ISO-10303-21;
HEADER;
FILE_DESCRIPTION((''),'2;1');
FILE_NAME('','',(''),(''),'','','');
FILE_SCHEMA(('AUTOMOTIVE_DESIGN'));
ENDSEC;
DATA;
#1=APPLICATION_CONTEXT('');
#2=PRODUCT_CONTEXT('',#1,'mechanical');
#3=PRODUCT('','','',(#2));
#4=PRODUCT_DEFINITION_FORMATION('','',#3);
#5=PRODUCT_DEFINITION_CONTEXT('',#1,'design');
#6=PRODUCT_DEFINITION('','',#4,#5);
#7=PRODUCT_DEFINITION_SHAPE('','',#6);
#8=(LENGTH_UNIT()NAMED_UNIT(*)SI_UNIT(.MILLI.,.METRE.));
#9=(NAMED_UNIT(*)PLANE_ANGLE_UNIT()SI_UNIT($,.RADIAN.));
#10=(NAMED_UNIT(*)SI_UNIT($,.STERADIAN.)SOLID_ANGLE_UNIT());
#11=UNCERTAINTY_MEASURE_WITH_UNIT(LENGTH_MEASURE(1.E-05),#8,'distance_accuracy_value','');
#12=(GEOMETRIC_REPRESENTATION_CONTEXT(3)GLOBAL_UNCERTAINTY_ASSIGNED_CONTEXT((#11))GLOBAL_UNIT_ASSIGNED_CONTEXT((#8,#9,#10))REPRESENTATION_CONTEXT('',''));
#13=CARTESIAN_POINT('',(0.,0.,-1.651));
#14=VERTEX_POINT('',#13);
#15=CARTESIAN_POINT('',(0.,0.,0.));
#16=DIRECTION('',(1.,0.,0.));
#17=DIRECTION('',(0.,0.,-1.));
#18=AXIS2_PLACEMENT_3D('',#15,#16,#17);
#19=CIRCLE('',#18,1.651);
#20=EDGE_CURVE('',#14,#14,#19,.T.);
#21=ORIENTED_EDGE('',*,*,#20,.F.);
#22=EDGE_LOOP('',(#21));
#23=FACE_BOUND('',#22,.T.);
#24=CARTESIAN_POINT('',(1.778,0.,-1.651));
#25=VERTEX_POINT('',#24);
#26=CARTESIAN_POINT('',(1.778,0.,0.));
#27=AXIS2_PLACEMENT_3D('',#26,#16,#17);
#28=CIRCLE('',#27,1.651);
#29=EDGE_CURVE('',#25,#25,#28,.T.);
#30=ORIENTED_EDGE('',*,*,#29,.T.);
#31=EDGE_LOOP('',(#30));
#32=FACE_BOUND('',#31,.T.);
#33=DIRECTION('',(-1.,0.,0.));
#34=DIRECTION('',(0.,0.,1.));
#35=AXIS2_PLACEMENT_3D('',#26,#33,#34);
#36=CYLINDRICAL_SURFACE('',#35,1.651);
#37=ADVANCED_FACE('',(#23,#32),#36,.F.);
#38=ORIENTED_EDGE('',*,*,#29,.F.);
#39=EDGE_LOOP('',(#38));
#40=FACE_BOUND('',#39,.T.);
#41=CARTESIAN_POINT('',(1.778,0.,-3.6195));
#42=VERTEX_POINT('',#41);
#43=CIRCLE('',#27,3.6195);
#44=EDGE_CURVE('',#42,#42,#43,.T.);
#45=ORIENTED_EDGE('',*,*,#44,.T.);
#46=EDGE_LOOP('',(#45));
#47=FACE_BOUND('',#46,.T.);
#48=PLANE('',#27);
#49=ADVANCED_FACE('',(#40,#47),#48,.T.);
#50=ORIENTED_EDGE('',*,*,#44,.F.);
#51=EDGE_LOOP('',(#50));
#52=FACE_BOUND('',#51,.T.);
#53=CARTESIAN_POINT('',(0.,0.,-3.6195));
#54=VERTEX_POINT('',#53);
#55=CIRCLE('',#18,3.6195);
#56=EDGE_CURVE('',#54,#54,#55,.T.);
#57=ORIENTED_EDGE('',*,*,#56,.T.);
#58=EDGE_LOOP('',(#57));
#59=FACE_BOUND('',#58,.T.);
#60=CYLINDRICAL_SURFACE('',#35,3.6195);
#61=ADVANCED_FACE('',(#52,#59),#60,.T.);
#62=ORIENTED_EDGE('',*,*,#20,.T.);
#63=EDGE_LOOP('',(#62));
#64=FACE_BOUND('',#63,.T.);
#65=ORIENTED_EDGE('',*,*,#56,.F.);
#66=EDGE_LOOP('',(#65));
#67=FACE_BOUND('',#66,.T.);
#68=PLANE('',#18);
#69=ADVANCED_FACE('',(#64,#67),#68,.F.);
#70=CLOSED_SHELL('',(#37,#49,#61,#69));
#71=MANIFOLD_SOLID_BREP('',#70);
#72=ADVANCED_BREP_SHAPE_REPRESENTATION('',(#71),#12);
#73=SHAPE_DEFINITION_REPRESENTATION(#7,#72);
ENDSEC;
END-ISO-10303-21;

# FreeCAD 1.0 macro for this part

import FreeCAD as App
import Part
import Sketcher
from FreeCAD import Vector
Q = App.Units.Quantity

doc = App.newDocument("Part")
body = doc.addObject("PartDesign::Body", "Body")

# Sketch on YZ plane
sketch1 = body.newObject("Sketcher::SketchObject", "Sketch")
sketch1.AttachmentSupport = (doc.getObject("YZ_Plane"), [""])
sketch1.MapMode = "FlatFace"
sketch1.addGeometry(Part.Circle(Vector(0, 0, 0), Vector(0, 0, 1), 3.6), False)
sketch1.addGeometry(Part.Circle(Vector(0, 0, 0), Vector(0, 0, 1), 1.7), False)
sketch1.addConstraint(Sketcher.Constraint("Coincident", 0, 3, -1, 1))
sketch1.addConstraint(Sketcher.Constraint("Coincident", 1, 3, -1, 1))
sketch1.addConstraint(Sketcher.Constraint("Diameter", 1, Q("0.13 in")))
sketch1.addConstraint(Sketcher.Constraint("Diameter", 0, Q("0.285 in")))
pad1 = body.newObject("PartDesign::Pad", "Pad")
pad1.Profile = sketch1
pad1.Length = Q("0.07 in")

doc.recompute()
